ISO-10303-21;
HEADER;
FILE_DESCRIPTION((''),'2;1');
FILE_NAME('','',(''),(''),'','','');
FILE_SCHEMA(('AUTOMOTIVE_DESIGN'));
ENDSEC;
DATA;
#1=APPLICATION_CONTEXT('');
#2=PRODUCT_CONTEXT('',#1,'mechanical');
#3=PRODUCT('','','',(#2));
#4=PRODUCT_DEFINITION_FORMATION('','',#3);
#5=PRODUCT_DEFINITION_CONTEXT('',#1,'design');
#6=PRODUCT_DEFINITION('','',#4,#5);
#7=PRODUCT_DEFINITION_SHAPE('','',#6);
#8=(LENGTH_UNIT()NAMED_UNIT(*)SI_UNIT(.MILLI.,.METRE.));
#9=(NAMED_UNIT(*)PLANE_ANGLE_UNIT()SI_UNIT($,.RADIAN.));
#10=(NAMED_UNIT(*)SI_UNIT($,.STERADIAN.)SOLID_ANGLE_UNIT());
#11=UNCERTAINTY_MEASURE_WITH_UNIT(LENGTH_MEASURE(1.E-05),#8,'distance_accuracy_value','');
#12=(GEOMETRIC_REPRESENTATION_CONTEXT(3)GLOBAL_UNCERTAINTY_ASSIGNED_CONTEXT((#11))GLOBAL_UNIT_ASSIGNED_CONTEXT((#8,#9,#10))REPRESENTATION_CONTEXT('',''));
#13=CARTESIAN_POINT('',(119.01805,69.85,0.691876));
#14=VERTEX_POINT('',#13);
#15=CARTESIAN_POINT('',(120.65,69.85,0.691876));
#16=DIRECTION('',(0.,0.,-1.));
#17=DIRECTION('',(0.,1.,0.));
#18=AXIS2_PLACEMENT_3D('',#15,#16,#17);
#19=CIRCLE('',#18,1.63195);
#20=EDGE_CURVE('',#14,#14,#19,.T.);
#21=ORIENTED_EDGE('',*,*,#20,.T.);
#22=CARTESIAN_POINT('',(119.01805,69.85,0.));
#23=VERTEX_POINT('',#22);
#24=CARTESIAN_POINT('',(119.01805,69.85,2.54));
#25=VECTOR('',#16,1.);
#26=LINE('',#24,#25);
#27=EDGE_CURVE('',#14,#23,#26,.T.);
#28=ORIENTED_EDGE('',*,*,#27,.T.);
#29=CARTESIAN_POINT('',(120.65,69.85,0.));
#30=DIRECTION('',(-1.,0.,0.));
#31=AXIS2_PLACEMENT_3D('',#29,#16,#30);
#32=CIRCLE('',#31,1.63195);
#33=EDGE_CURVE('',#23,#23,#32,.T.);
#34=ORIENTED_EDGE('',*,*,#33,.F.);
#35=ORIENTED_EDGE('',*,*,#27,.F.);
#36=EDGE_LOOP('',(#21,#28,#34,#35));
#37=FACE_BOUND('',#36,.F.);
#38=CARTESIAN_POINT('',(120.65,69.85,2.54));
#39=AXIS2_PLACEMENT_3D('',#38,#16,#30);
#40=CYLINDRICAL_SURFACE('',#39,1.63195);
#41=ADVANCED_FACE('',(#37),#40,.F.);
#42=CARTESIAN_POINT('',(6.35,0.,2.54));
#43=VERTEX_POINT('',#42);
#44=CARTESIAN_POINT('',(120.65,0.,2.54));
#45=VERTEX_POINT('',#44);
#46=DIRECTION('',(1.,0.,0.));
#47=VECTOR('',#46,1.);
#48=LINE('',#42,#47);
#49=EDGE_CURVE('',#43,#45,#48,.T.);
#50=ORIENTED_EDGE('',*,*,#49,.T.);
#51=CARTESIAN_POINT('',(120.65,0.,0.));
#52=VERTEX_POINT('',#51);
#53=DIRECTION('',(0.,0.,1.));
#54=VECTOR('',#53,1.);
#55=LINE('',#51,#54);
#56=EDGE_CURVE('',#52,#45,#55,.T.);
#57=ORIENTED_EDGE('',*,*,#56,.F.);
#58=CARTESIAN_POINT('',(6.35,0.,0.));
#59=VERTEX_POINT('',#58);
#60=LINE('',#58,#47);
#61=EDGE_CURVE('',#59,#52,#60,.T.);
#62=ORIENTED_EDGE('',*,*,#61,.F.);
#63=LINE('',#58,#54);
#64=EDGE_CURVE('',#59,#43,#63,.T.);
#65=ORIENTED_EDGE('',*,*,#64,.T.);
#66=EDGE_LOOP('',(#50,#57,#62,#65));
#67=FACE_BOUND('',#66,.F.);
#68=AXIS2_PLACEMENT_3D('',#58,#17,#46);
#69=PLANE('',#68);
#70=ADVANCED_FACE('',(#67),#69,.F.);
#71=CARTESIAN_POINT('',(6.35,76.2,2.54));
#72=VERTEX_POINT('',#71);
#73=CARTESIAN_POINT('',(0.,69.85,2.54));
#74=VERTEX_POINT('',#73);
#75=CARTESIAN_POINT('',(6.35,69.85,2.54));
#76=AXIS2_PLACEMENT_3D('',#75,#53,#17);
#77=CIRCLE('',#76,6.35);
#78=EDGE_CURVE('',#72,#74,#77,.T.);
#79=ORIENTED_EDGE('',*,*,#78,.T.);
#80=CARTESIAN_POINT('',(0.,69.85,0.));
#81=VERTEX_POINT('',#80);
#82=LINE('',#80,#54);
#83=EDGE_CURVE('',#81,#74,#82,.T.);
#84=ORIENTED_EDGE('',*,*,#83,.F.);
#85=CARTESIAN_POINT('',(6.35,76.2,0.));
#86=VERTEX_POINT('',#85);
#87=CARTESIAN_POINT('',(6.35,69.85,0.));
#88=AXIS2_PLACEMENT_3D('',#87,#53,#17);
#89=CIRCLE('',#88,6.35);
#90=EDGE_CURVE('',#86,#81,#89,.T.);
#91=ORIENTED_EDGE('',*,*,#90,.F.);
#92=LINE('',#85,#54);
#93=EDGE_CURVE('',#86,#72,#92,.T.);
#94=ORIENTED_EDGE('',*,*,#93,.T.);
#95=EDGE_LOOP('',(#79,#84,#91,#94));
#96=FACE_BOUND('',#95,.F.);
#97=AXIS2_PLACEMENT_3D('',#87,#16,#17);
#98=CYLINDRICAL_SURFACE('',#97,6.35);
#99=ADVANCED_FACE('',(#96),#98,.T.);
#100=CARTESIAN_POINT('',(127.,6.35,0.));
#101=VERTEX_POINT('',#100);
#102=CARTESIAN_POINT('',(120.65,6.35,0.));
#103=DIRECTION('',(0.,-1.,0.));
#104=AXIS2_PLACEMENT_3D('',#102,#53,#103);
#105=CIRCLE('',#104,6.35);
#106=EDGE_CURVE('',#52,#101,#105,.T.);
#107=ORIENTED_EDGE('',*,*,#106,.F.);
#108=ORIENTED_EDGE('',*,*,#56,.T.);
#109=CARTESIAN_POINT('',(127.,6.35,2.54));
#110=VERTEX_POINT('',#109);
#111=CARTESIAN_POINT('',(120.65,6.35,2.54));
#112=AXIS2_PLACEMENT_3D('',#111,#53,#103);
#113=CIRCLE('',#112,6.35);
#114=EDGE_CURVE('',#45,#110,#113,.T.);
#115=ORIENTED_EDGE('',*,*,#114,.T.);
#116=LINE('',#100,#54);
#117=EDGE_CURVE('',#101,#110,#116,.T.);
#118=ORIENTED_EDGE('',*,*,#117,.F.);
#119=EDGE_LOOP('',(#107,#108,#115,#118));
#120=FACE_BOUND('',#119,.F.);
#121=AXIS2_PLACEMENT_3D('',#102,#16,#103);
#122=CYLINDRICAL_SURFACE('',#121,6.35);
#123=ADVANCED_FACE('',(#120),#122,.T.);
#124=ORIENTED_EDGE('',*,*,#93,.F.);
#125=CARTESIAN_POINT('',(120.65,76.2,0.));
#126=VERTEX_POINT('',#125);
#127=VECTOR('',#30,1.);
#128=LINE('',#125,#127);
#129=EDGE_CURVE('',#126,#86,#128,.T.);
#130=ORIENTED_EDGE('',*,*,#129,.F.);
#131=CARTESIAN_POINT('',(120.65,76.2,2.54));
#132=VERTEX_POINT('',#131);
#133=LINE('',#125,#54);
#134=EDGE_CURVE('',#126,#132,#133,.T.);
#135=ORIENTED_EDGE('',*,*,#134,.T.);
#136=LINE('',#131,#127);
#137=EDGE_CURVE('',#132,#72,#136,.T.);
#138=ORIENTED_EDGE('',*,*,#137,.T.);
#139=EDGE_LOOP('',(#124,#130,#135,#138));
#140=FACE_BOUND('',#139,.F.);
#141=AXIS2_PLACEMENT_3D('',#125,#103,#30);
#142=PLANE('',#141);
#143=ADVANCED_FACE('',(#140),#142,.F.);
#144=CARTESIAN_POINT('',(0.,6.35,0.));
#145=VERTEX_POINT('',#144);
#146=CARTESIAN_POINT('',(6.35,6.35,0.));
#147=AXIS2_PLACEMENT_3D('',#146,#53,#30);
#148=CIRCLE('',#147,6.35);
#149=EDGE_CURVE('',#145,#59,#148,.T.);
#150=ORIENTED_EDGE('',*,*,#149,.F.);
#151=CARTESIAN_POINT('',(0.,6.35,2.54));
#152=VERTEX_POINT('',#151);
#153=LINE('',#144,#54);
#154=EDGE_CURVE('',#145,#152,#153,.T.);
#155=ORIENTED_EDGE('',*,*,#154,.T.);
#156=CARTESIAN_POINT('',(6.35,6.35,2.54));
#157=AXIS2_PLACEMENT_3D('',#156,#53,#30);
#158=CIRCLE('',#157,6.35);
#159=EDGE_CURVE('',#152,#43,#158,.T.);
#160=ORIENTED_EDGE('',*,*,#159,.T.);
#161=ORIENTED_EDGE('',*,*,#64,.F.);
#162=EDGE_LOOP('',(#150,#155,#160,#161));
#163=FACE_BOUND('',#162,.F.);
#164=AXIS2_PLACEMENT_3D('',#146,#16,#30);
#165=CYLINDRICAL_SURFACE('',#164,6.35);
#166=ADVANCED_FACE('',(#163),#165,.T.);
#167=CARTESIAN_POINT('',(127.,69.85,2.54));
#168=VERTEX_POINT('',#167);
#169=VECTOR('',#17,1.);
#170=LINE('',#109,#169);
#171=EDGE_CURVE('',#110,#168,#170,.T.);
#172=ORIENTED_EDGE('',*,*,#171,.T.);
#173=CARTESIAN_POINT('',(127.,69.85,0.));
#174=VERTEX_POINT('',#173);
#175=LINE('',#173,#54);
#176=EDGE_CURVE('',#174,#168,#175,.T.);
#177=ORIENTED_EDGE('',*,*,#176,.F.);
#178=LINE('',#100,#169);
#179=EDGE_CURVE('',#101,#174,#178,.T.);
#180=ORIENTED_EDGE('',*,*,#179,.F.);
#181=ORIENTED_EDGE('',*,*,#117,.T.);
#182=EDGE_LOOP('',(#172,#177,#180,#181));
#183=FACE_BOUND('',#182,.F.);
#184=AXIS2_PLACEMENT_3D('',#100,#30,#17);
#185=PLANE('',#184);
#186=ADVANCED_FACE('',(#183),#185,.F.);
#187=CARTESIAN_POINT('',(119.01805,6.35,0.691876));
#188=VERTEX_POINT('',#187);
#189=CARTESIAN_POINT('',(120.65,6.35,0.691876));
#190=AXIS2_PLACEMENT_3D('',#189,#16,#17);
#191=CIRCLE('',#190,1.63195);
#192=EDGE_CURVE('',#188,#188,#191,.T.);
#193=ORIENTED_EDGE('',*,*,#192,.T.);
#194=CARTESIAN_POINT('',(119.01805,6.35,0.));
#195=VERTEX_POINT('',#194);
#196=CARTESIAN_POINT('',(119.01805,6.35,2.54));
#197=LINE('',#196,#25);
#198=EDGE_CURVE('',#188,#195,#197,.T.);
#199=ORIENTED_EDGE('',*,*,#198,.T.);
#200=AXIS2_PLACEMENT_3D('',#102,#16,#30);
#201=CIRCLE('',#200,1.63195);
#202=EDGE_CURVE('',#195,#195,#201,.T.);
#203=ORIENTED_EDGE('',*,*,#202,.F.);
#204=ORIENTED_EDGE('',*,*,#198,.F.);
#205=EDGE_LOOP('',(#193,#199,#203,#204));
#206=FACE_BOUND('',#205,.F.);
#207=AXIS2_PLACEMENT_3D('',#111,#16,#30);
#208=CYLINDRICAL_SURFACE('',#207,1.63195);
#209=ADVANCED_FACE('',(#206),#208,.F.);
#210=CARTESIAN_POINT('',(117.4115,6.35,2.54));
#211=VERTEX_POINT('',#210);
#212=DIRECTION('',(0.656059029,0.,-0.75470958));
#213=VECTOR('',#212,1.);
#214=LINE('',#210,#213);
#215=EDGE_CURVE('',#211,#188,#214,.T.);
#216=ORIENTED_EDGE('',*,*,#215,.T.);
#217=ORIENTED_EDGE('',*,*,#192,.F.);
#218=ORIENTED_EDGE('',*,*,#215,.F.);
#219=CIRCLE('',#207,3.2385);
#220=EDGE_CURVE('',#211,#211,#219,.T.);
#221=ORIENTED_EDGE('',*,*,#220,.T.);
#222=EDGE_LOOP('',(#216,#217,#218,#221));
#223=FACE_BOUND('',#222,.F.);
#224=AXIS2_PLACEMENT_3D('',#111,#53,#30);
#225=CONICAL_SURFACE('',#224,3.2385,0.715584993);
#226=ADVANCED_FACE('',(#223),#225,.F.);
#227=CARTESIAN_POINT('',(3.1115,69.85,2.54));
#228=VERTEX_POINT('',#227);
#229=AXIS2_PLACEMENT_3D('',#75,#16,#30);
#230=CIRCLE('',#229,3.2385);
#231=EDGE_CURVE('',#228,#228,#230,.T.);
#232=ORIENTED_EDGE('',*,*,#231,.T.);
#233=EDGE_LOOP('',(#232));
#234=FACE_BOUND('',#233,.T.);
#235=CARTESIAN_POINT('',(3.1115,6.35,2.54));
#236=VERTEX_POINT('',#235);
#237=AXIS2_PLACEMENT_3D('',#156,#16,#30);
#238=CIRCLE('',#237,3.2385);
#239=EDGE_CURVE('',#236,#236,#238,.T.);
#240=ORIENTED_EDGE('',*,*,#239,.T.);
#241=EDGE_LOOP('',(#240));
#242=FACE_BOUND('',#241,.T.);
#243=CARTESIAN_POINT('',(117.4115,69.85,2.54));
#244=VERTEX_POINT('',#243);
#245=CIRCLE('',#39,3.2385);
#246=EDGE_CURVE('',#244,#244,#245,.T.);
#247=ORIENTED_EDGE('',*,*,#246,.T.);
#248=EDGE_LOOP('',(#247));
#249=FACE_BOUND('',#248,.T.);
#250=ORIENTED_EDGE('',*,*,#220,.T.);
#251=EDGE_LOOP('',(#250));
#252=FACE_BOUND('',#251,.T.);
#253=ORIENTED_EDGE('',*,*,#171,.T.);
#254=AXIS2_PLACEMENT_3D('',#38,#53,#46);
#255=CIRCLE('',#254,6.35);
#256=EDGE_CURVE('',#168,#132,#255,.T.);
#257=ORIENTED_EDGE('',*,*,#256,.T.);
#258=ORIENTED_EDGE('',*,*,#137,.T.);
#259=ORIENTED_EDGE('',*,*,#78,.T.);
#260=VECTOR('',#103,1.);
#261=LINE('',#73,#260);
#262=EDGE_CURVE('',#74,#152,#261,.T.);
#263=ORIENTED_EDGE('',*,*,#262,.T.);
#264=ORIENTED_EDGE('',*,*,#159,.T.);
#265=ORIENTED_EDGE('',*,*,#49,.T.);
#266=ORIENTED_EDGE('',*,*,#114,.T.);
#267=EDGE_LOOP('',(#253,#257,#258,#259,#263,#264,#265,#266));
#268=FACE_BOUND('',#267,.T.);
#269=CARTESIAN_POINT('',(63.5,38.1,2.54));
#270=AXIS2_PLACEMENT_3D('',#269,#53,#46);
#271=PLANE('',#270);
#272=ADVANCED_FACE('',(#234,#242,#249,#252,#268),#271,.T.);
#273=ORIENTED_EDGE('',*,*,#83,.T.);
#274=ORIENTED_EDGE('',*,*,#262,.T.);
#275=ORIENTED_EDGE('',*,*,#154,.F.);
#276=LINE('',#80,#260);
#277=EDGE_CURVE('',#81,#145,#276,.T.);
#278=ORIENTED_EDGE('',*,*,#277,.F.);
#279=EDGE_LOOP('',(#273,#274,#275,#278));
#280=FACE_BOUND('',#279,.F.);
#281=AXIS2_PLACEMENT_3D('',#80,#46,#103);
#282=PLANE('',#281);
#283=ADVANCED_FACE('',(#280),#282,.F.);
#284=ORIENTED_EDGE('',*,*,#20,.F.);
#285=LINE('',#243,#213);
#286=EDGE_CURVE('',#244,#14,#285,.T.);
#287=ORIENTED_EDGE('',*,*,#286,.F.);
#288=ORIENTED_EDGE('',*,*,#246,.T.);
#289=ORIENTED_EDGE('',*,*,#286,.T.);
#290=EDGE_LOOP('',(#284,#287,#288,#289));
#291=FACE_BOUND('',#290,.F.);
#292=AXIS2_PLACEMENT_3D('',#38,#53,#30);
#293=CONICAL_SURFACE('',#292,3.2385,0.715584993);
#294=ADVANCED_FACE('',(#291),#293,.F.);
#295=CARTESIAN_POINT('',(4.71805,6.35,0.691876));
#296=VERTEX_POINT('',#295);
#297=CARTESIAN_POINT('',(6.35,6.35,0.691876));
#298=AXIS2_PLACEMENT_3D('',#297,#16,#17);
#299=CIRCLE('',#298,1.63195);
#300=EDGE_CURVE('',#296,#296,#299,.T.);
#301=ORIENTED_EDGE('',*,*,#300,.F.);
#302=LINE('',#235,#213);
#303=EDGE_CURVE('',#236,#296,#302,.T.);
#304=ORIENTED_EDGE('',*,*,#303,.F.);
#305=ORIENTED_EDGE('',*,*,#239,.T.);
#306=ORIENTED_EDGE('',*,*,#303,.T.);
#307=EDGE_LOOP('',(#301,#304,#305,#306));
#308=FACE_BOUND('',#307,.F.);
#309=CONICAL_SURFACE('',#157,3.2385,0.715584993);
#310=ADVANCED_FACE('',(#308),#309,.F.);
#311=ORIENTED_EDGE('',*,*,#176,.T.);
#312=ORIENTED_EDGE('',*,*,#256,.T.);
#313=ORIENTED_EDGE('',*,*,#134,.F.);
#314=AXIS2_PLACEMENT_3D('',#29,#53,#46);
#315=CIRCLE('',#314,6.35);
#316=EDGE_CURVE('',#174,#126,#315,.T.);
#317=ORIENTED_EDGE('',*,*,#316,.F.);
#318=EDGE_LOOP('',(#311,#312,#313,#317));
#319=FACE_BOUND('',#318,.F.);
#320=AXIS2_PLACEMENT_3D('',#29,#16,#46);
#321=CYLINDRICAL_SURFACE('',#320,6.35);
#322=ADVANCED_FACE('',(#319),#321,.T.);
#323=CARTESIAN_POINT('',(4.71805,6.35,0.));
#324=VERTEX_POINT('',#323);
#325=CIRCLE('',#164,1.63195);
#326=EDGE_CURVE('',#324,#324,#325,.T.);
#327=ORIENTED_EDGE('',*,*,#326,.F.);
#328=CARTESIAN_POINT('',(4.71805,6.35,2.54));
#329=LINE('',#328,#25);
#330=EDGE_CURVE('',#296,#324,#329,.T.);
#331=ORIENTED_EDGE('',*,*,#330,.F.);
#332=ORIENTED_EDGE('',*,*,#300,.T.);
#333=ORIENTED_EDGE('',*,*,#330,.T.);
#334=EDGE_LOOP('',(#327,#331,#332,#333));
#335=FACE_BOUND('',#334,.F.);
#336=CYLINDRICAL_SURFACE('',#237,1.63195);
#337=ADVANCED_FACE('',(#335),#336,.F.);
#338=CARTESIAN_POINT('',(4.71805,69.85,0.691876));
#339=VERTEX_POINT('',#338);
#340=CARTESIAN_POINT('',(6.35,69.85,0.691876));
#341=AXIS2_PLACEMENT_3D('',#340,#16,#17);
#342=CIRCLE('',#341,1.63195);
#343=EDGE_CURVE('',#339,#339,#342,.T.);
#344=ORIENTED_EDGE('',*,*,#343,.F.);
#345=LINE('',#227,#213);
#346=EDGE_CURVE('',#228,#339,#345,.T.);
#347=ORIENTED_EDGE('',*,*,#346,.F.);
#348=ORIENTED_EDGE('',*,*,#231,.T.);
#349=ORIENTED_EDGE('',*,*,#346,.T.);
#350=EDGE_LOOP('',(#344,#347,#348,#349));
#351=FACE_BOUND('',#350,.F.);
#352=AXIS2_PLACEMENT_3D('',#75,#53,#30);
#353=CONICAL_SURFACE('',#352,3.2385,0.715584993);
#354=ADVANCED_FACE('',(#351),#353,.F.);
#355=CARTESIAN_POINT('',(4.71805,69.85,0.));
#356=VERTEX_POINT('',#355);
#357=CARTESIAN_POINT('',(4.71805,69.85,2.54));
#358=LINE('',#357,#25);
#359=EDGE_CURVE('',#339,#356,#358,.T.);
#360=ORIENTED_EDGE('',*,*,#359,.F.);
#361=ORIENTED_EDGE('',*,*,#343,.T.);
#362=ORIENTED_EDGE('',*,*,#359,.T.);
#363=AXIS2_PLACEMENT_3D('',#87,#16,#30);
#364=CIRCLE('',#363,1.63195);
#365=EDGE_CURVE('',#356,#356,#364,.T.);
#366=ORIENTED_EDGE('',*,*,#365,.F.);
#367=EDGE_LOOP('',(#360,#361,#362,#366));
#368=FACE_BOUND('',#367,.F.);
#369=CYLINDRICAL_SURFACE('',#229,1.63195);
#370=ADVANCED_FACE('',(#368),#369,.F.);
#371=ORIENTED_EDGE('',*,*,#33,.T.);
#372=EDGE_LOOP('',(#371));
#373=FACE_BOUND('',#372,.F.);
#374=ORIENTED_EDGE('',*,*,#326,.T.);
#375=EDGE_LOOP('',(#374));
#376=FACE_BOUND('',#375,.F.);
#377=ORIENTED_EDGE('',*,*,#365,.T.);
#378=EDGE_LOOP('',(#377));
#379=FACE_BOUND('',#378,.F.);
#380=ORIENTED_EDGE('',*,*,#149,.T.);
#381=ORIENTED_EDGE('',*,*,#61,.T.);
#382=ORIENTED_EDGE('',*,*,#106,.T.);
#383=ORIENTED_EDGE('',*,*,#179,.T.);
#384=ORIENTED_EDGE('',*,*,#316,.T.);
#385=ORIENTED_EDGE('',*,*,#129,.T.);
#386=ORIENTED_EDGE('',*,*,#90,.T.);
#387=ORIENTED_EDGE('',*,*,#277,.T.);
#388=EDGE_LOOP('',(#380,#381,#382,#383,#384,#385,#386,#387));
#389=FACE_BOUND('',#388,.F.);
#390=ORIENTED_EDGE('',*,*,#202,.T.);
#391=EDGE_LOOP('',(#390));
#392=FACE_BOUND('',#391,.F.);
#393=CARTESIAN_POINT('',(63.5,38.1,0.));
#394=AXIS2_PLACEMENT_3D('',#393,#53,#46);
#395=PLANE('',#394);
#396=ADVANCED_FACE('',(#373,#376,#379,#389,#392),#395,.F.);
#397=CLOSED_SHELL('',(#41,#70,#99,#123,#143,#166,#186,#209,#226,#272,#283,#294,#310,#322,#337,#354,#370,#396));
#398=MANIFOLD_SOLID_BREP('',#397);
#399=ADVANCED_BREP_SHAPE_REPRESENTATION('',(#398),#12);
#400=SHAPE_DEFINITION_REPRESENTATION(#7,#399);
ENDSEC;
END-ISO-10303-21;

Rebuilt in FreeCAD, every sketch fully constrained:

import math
import FreeCAD as App
import Part
import Sketcher
from FreeCAD import Vector
Q = App.Units.Quantity

doc = App.newDocument("Part")
body = doc.addObject("PartDesign::Body", "Body")

# Sketch on XY plane
sketch1 = body.newObject("Sketcher::SketchObject", "Sketch")
sketch1.AttachmentSupport = (doc.getObject("XY_Plane"), [""])
sketch1.MapMode = "FlatFace"
sketch1.addGeometry([
    Part.LineSegment(Vector(120.65, 76.2, 0), Vector(6.35, 76.2, 0)),  # 0
    Part.ArcOfCircle(Part.Circle(Vector(6.35, 69.85, 0), Vector(0, 0, 1), 6.35), math.radians(90), math.radians(180)),  # 1
    Part.LineSegment(Vector(0, 69.85, 0), Vector(0, 6.35, 0)),  # 2
    Part.ArcOfCircle(Part.Circle(Vector(6.35, 6.35, 0), Vector(0, 0, 1), 6.35), math.radians(180), math.radians(270)),  # 3
    Part.LineSegment(Vector(6.35, 0, 0), Vector(120.65, 0, 0)),  # 4
    Part.ArcOfCircle(Part.Circle(Vector(120.65, 6.35, 0), Vector(0, 0, 1), 6.35), math.radians(-90), math.radians(0)),  # 5
    Part.LineSegment(Vector(127, 6.35, 0), Vector(127, 69.85, 0)),  # 6
    Part.ArcOfCircle(Part.Circle(Vector(120.65, 69.85, 0), Vector(0, 0, 1), 6.35), math.radians(0), math.radians(90)),  # 7
], False)
sketch1.addConstraint([
    Sketcher.Constraint("Tangent", 0, 2, 1, 1),
    Sketcher.Constraint("Tangent", 1, 2, 2, 1),
    Sketcher.Constraint("Tangent", 2, 2, 3, 1),
    Sketcher.Constraint("Tangent", 3, 2, 4, 1),
    Sketcher.Constraint("Tangent", 4, 2, 5, 1),
    Sketcher.Constraint("Tangent", 5, 2, 6, 1),
    Sketcher.Constraint("Tangent", 6, 2, 7, 1),
    Sketcher.Constraint("Tangent", 7, 2, 0, 1),
    Sketcher.Constraint("Horizontal", 0),
    Sketcher.Constraint("Vertical", 2),
    Sketcher.Constraint("Horizontal", 4),
    Sketcher.Constraint("Vertical", 6),
    Sketcher.Constraint("Equal", 1, 3),
    Sketcher.Constraint("Equal", 3, 5),
    Sketcher.Constraint("Equal", 5, 7),
    Sketcher.Constraint("PointOnObject", 1, 2, -2),
    Sketcher.Constraint("PointOnObject", 3, 2, -1),
    Sketcher.Constraint("Radius", 1, Q("0.25 in")),
    Sketcher.Constraint("DistanceX", 0, 2, 0, 1, Q("4.5 in")),
    Sketcher.Constraint("DistanceY", 2, 2, 2, 1, Q("2.5 in")),
])
pad1 = body.newObject("PartDesign::Pad", "Pad")
pad1.Profile = sketch1
pad1.Length = Q("0.1 in")

# Sketch on XY plane
sketch2 = body.newObject("Sketcher::SketchObject", "Sketch001")
sketch2.AttachmentSupport = (doc.getObject("XY_Plane"), [""])
sketch2.MapMode = "FlatFace"
sketch2.AttachmentOffset = App.Placement(Vector(0, 0, 0.1 * 25.4), App.Rotation())
sketch2.addGeometry([
    Part.Circle(Vector(6.35, 69.85, 0), Vector(0, 0, 1), 1.63195),
    Part.Circle(Vector(6.35, 6.35, 0), Vector(0, 0, 1), 1.63195),
    Part.Circle(Vector(120.65, 6.35, 0), Vector(0, 0, 1), 1.63195),
    Part.Circle(Vector(120.65, 69.85, 0), Vector(0, 0, 1), 1.63195),
], False)
sketch2.addConstraint([
    Sketcher.Constraint("Equal", 0, 1),
    Sketcher.Constraint("Equal", 1, 2),
    Sketcher.Constraint("Equal", 2, 3),
    Sketcher.Constraint("Horizontal", 1, 3, 2, 3),
    Sketcher.Constraint("Horizontal", 0, 3, 3, 3),
    Sketcher.Constraint("Vertical", 0, 3, 1, 3),
    Sketcher.Constraint("Vertical", 2, 3, 3, 3),
    Sketcher.Constraint("Diameter", 0, Q("0.1285 in")),
    Sketcher.Constraint("DistanceY", 1, 3, 0, 3, Q("2.5 in")),
    Sketcher.Constraint("DistanceX", 1, 3, 2, 3, Q("4.5 in")),
    Sketcher.Constraint("DistanceX", -1, 1, 0, 3, Q("0.25 in")),
    Sketcher.Constraint("DistanceY", -1, 1, 0, 3, Q("2.75 in")),
])
doc.recompute()
hole = body.newObject("PartDesign::Hole", "Hole")
hole.Profile = sketch2
hole.ThreadType = "None"
hole.Diameter = Q("0.1285 in")
hole.DepthType = "ThroughAll"
hole.HoleCutType = "Countersink"
hole.HoleCutDiameter = Q("0.255 in")
hole.HoleCutCountersinkAngle = 82

doc.recompute()
